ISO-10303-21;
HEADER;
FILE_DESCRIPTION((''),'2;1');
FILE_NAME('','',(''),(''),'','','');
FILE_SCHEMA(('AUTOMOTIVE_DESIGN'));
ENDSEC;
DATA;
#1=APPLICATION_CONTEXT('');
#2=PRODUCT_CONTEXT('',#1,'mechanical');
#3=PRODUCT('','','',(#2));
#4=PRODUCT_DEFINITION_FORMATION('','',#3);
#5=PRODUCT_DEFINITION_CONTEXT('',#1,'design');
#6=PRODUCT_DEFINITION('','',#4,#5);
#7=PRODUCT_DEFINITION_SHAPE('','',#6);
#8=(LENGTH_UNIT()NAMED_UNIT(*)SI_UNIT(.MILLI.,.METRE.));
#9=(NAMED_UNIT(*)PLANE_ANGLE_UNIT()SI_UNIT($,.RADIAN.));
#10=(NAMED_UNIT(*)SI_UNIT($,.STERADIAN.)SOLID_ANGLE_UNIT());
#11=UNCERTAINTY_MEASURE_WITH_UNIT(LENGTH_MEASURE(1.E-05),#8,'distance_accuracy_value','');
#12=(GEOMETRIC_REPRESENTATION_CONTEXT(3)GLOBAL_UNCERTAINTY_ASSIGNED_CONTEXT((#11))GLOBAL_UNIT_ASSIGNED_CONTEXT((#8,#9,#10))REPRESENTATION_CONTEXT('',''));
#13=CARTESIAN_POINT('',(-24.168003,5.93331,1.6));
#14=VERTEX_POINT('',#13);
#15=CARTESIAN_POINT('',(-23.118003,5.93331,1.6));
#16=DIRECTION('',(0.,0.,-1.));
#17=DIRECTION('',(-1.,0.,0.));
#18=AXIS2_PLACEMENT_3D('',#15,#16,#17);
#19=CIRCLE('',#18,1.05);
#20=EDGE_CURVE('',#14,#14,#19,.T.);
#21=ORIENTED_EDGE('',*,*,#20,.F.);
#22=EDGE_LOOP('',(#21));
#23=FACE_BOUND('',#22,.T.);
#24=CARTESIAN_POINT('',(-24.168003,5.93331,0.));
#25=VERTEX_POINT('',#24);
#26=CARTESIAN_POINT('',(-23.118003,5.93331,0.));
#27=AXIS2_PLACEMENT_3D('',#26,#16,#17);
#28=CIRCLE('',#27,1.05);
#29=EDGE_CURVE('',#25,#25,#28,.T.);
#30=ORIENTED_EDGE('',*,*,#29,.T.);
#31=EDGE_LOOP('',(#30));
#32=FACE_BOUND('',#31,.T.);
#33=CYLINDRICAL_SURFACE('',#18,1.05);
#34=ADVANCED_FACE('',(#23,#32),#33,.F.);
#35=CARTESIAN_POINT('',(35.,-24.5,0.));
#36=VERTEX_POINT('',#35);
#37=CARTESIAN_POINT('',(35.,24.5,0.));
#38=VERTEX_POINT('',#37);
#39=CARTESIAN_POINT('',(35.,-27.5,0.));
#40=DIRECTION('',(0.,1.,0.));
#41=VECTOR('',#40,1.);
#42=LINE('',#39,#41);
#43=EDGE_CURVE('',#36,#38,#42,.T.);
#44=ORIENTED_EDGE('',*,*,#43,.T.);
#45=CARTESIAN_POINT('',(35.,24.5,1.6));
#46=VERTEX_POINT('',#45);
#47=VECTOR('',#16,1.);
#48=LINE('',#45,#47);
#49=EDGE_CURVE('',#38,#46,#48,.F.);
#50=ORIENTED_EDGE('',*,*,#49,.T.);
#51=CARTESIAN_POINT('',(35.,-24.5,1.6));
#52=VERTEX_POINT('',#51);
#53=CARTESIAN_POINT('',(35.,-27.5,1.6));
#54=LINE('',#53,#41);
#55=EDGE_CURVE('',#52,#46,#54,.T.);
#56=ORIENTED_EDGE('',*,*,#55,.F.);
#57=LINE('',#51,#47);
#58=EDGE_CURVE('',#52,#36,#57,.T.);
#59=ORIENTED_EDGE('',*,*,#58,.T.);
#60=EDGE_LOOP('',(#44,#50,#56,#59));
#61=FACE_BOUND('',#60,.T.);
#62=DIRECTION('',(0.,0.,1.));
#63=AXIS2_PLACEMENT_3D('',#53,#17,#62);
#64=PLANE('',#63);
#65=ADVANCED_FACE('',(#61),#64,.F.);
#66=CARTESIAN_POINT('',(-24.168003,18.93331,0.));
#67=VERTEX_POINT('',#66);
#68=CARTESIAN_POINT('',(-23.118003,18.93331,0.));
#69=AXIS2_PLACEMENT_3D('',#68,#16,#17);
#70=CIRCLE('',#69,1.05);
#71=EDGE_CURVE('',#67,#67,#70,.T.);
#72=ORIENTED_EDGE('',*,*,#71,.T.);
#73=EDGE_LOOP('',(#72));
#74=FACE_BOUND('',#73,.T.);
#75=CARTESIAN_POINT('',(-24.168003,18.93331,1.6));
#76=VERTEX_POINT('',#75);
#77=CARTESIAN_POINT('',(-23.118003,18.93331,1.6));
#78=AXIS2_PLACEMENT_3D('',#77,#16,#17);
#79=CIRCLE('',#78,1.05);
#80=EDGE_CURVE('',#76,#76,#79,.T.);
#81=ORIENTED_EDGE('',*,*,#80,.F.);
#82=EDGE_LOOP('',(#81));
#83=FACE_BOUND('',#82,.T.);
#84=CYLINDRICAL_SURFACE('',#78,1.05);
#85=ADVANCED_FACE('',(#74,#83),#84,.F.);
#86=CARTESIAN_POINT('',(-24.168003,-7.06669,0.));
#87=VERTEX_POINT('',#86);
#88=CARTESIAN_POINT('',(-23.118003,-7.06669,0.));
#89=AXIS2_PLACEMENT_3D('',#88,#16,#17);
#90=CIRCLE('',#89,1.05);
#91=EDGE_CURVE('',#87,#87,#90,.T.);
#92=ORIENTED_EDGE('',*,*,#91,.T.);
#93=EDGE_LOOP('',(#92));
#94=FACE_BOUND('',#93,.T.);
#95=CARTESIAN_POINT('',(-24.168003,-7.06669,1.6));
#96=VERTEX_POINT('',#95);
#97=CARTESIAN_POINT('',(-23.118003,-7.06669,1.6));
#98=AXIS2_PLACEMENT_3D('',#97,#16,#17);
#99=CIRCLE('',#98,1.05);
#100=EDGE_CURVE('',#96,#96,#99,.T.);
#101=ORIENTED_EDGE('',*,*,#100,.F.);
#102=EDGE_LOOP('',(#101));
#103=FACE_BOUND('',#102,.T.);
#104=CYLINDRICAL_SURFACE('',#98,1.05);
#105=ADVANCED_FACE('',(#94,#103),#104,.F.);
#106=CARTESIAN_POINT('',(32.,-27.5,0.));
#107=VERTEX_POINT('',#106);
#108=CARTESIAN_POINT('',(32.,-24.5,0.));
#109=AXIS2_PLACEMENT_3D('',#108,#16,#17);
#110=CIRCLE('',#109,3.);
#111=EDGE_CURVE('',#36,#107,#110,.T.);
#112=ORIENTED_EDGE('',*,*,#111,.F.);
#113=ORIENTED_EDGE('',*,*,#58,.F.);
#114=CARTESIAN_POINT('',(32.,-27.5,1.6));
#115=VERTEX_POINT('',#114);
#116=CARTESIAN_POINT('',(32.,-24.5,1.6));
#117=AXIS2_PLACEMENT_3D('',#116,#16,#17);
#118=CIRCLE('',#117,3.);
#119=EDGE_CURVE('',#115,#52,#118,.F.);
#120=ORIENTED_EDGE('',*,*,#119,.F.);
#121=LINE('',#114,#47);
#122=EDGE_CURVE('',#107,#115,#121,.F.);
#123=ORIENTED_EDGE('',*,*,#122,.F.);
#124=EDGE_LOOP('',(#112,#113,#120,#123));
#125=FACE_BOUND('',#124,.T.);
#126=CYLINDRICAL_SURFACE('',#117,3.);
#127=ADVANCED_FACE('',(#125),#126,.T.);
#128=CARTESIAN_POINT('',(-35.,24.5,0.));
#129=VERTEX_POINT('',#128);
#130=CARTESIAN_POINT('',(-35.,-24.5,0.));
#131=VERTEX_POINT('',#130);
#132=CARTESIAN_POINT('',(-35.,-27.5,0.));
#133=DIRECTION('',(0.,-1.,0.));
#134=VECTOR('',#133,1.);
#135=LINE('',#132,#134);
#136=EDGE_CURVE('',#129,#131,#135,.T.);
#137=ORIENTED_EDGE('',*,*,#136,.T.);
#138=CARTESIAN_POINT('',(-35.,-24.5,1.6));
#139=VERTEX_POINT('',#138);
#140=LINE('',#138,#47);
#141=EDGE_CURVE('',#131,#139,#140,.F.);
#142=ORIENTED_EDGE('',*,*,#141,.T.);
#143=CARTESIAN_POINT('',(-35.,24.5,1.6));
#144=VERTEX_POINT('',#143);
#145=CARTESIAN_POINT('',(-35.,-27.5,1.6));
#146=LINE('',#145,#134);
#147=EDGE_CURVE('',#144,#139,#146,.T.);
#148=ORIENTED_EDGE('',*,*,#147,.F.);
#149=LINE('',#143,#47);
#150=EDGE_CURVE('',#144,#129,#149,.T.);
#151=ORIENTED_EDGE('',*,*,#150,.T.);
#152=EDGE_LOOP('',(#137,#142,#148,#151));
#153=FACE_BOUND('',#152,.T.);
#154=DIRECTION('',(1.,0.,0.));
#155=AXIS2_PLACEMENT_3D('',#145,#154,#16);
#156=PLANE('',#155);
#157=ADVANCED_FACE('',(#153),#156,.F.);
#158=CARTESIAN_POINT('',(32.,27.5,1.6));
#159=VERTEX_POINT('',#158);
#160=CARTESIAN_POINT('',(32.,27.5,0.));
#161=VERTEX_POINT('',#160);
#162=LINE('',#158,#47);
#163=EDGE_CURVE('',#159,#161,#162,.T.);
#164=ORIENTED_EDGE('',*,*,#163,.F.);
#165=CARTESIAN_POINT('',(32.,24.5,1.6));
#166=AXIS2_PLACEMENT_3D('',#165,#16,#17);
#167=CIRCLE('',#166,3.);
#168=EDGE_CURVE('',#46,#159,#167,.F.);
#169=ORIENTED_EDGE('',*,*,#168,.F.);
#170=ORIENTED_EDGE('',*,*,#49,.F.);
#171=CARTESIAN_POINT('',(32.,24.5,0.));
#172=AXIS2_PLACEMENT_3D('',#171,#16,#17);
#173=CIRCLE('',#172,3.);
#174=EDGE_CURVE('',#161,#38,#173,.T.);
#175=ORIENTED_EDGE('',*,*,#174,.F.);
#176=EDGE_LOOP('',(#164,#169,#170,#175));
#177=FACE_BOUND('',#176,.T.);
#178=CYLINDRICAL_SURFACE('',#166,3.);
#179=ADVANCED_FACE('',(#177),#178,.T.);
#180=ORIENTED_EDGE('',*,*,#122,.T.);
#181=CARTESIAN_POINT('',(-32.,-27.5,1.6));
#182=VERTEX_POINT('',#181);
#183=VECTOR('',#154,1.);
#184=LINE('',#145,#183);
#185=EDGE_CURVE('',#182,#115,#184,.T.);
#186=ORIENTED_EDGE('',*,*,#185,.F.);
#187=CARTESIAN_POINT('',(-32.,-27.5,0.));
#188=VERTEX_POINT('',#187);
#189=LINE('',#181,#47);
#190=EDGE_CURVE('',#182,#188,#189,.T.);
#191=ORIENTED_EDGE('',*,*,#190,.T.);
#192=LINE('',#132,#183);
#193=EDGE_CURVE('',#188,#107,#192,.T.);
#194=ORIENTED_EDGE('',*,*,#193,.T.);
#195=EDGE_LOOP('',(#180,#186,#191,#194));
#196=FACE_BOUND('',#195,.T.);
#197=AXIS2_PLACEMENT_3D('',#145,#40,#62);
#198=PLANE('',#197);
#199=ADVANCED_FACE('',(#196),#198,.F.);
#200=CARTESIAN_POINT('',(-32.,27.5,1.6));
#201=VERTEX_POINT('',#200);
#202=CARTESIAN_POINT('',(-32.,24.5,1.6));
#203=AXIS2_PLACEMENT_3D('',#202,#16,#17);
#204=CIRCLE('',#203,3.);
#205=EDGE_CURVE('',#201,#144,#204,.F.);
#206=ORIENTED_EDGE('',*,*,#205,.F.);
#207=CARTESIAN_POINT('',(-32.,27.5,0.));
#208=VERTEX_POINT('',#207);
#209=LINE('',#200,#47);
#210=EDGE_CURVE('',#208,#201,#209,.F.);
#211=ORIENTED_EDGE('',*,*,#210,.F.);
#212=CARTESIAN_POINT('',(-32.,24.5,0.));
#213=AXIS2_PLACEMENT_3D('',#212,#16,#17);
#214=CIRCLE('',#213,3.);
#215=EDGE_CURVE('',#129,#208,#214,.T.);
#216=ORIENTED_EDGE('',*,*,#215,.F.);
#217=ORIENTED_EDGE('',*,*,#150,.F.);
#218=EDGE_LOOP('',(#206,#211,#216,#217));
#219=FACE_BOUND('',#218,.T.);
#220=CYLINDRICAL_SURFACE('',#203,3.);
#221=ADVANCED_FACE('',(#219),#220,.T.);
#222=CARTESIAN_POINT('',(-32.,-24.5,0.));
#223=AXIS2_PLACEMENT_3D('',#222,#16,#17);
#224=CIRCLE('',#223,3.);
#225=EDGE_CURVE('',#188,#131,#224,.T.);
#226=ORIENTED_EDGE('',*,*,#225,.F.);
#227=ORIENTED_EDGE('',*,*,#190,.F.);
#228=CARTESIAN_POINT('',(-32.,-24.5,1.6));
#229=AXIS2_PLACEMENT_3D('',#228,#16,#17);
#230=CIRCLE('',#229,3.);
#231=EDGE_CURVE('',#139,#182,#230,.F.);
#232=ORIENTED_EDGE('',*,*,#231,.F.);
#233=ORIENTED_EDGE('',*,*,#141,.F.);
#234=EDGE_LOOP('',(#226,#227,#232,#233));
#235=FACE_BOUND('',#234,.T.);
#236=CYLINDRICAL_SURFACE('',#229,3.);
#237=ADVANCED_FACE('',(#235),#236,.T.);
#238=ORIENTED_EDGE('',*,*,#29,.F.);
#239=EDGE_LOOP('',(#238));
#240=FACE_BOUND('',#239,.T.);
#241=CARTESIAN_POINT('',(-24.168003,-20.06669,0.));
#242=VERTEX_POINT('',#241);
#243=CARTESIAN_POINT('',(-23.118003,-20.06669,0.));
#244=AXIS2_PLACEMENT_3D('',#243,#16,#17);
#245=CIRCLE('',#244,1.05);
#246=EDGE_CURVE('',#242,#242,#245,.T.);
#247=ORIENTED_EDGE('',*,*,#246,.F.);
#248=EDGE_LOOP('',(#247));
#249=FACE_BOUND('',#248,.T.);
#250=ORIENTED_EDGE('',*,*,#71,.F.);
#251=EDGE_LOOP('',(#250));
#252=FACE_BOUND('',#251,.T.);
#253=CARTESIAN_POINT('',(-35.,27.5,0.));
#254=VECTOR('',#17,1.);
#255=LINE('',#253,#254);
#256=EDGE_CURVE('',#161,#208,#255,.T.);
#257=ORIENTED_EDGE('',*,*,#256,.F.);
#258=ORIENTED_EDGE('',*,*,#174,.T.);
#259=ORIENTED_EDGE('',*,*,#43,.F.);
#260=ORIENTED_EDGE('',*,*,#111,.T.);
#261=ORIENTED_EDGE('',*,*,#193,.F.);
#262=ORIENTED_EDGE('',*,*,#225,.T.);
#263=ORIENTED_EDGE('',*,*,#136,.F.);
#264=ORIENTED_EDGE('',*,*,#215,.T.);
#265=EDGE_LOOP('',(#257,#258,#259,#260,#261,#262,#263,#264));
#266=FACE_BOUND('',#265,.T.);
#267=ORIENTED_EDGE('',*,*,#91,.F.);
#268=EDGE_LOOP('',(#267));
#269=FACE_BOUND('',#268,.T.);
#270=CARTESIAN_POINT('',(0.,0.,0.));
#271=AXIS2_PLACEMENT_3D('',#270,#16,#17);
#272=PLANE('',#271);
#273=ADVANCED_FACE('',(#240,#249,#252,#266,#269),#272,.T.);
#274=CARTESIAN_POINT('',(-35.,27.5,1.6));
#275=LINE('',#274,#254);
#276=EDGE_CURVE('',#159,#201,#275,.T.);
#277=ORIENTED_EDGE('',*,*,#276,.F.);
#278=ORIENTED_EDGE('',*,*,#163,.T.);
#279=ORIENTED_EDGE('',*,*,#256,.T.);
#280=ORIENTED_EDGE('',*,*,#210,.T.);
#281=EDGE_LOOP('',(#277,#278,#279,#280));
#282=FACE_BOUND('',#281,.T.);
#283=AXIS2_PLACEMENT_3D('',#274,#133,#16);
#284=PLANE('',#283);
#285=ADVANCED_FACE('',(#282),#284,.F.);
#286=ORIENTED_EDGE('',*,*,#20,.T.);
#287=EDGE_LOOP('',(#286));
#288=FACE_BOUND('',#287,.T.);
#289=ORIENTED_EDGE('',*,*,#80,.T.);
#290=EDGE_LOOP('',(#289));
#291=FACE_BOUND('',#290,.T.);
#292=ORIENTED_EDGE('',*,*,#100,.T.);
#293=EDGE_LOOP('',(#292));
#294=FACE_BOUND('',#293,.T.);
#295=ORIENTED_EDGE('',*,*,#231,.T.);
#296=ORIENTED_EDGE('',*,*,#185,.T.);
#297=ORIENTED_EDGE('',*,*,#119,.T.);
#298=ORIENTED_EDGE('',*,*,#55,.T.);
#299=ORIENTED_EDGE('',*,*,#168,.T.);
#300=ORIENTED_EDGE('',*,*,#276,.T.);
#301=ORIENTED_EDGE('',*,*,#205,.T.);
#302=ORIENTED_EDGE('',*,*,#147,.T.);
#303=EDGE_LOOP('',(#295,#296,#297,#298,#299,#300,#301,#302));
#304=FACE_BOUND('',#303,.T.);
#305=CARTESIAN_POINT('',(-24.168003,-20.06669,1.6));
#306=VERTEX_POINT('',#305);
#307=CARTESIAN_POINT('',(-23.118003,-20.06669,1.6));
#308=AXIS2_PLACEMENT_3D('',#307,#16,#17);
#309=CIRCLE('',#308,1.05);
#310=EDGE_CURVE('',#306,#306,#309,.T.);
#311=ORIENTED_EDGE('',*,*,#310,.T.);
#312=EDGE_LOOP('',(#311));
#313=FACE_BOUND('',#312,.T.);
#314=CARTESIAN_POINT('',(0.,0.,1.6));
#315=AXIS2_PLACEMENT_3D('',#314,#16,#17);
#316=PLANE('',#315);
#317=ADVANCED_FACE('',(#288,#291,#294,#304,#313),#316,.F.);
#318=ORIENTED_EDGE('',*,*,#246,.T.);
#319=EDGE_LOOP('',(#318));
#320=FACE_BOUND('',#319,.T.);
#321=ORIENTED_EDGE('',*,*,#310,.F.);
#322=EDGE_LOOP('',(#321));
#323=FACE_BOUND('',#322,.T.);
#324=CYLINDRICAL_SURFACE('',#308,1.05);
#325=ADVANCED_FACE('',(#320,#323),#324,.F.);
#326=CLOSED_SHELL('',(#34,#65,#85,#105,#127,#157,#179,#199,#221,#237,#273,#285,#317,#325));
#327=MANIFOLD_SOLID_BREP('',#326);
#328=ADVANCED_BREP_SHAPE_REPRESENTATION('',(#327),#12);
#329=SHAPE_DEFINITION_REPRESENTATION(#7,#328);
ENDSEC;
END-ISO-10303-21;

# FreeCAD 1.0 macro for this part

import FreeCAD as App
import Part
import Sketcher
from FreeCAD import Vector


def edges_at(feature, points):
    """Names of the edges that pass closest to the given points."""
    edges = feature.Shape.Edges
    near = lambda p: min(range(len(edges)), key=lambda i: edges[i].distToShape(Part.Vertex(*p))[0])
    return sorted({f"Edge{near(p) + 1}" for p in points})

doc = App.newDocument("Part")
params = doc.addObject("Spreadsheet::Sheet", "Params")
for row, (alias, value) in enumerate([
    ("sketch1_width", "70 mm"),
    ("sketch1_height", "55 mm"),
    ("pad1_length", "1.6 mm"),
    ("fillet_radius", "3 mm"),
    ("sketch2_diameter", "2.1 mm"),
], start=1):
    params.set(f"A{row}", alias)
    params.set(f"B{row}", "=" + value)
    params.setAlias(f"B{row}", alias)

body = doc.addObject("PartDesign::Body", "Body")

# Sketch on XY plane
sketch1 = doc.addObject("Sketcher::SketchObject", "Sketch")
body.addObject(sketch1)
sketch1.AttachmentSupport = (doc.XY_Plane, [""])
sketch1.MapMode = "FlatFace"
sketch1.addGeometry([
    Part.LineSegment(Vector(-35, 28, 0), Vector(-35, -28, 0)),
    Part.LineSegment(Vector(-35, -28, 0), Vector(35, -28, 0)),
    Part.LineSegment(Vector(35, -28, 0), Vector(35, 28, 0)),
    Part.LineSegment(Vector(35, 28, 0), Vector(-35, 28, 0)),
], False)
sketch1.addConstraint([
    Sketcher.Constraint("Coincident", 0, 2, 1, 1),
    Sketcher.Constraint("Coincident", 1, 2, 2, 1),
    Sketcher.Constraint("Coincident", 2, 2, 3, 1),
    Sketcher.Constraint("Coincident", 3, 2, 0, 1),
    Sketcher.Constraint("Vertical", 0),
    Sketcher.Constraint("Horizontal", 1),
    Sketcher.Constraint("Vertical", 2),
    Sketcher.Constraint("Horizontal", 3),
    Sketcher.Constraint("Symmetric", 0, 2, 2, 2, -1, 1),
    Sketcher.Constraint("DistanceX", 1, 1, 1, 2, 70.0),
    Sketcher.Constraint("DistanceY", 0, 2, 0, 1, 55.0),
])
sketch1.setExpression("Constraints[9]", "Params.sketch1_width")
sketch1.setExpression("Constraints[10]", "Params.sketch1_height")
pad1 = doc.addObject("PartDesign::Pad", "Pad")
body.addObject(pad1)
pad1.Profile = sketch1
pad1.setExpression("Length", "Params.pad1_length")
doc.recompute()

fillet = doc.addObject("PartDesign::Fillet", "Fillet")
body.addObject(fillet)
fillet.Base = (pad1, edges_at(pad1, [
    (35, -27.5, 0.8),
    (-35, -27.5, 0.8),
    (-35, 27.5, 0.8),
    (35, 27.5, 0.8),
]))
fillet.setExpression("Radius", "Params.fillet_radius")

# Sketch on XY plane
sketch2 = doc.addObject("Sketcher::SketchObject", "Sketch001")
body.addObject(sketch2)
sketch2.AttachmentSupport = (doc.XY_Plane, [""])
sketch2.MapMode = "FlatFace"
sketch2.addGeometry([
    Part.Circle(Vector(-23.1, -20.1, 0), Vector(0, 0, 1), 1.1),
    Part.Circle(Vector(-23.1, -7.1, 0), Vector(0, 0, 1), 1.1),
    Part.Circle(Vector(-23.1, 5.9, 0), Vector(0, 0, 1), 1.1),
    Part.Circle(Vector(-23.1, 18.9, 0), Vector(0, 0, 1), 1.1),
], False)
sketch2.addConstraint([
    Sketcher.Constraint("Equal", 0, 1),
    Sketcher.Constraint("Equal", 1, 2),
    Sketcher.Constraint("Equal", 2, 3),
    Sketcher.Constraint("Vertical", 0, 3, 1, 3),
    Sketcher.Constraint("Vertical", 1, 3, 2, 3),
    Sketcher.Constraint("Vertical", 2, 3, 3, 3),
    Sketcher.Constraint("Diameter", 0, 2.1),
    Sketcher.Constraint("DistanceY", 0, 3, 1, 3, 13.0),
    Sketcher.Constraint("DistanceY", 1, 3, 2, 3, 13.0),
    Sketcher.Constraint("DistanceY", 2, 3, 3, 3, 13.0),
    Sketcher.Constraint("DistanceY", 0, 3, -1, 1, 20.06669),
    Sketcher.Constraint("DistanceX", 0, 3, -1, 1, 23.118003),
])
sketch2.setExpression("Constraints[6]", "Params.sketch2_diameter")
pocket1 = doc.addObject("PartDesign::Pocket", "Pocket")
body.addObject(pocket1)
pocket1.Profile = sketch2
pocket1.Type = "ThroughAll"
pocket1.Reversed = True

doc.recompute()
